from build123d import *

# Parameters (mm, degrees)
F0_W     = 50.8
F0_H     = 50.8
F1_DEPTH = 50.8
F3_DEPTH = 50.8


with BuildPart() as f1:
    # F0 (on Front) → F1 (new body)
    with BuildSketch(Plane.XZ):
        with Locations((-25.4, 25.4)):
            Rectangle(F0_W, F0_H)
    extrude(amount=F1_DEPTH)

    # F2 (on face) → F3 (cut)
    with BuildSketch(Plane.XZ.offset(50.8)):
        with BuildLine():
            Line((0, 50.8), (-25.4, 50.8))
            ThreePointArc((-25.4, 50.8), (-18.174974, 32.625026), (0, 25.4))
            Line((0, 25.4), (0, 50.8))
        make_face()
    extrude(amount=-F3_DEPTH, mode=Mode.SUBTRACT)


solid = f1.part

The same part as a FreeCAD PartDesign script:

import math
import FreeCAD as App
import Part
import Sketcher
Q = App.Units.Quantity

doc = App.newDocument("Part")
params = doc.addObject("Spreadsheet::Sheet", "Params")
for row, (alias, value) in enumerate([
    ("sketch1_width", "2 in"),
    ("pad1_length", "2 in"),
    ("sketch2_width", "1 in"),
    ("pocket1_length", "2 in"),
], start=1):
    params.set(f"A{row}", alias)
    params.set(f"B{row}", "=" + value)
    params.setAlias(f"B{row}", alias)

body = doc.addObject("PartDesign::Body", "Body")

# Sketch on XZ plane
sketch1 = body.newObject("Sketcher::SketchObject", "Sketch")
sketch1.AttachmentSupport = (doc.getObject("XZ_Plane"), [""])
sketch1.MapMode = "FlatFace"
sketch1.addGeometry(Part.LineSegment(App.Vector(-50.8, 50.8, 0), App.Vector(-50.8, 0, 0)), False)
sketch1.addGeometry(Part.LineSegment(App.Vector(-50.8, 0, 0), App.Vector(0, 0, 0)), False)
sketch1.addGeometry(Part.LineSegment(App.Vector(0, 0, 0), App.Vector(0, 50.8, 0)), False)
sketch1.addGeometry(Part.LineSegment(App.Vector(0, 50.8, 0), App.Vector(-50.8, 50.8, 0)), False)
sketch1.addConstraint(Sketcher.Constraint("Coincident", 0, 2, 1, 1))
sketch1.addConstraint(Sketcher.Constraint("Coincident", 1, 2, 2, 1))
sketch1.addConstraint(Sketcher.Constraint("Coincident", 2, 2, 3, 1))
sketch1.addConstraint(Sketcher.Constraint("Coincident", 3, 2, 0, 1))
sketch1.addConstraint(Sketcher.Constraint("Vertical", 0))
sketch1.addConstraint(Sketcher.Constraint("Horizontal", 1))
sketch1.addConstraint(Sketcher.Constraint("Vertical", 2))
sketch1.addConstraint(Sketcher.Constraint("Horizontal", 3))
sketch1.addConstraint(Sketcher.Constraint("Coincident", 1, 2, -1, 1))
sketch1.addConstraint(Sketcher.Constraint("Equal", 3, 0))
sketch1.addConstraint(Sketcher.Constraint("DistanceX", 1, 1, 1, 2, Q("2 in")))
sketch1.setExpression("Constraints[10]", "Params.sketch1_width")
pad1 = body.newObject("PartDesign::Pad", "Pad")
pad1.Profile = sketch1
pad1.setExpression("Length", "Params.pad1_length")

# Sketch on XZ plane
sketch2 = body.newObject("Sketcher::SketchObject", "Sketch001")
sketch2.AttachmentSupport = (doc.getObject("XZ_Plane"), [""])
sketch2.MapMode = "FlatFace"
sketch2.AttachmentOffset = App.Placement(App.Vector(0, 0, 2 * 25.4), App.Rotation())
sketch2.addGeometry(Part.LineSegment(App.Vector(0, 50.8, 0), App.Vector(-25.4, 50.8, 0)), False)
sketch2.addGeometry(Part.ArcOfCircle(Part.Circle(App.Vector(-0.707737, 50.092263, 0), App.Vector(0, 0, 1), 24.702404), math.radians(178.358222), math.radians(271.641778)), False)
sketch2.addGeometry(Part.LineSegment(App.Vector(0, 25.4, 0), App.Vector(0, 50.8, 0)), False)
sketch2.addConstraint(Sketcher.Constraint("Coincident", 0, 2, 1, 1))
sketch2.addConstraint(Sketcher.Constraint("Coincident", 1, 2, 2, 1))
sketch2.addConstraint(Sketcher.Constraint("Coincident", 2, 2, 0, 1))
sketch2.addConstraint(Sketcher.Constraint("Horizontal", 0))
sketch2.addConstraint(Sketcher.Constraint("Vertical", 2))
sketch2.addConstraint(Sketcher.Constraint("PointOnObject", 1, 2, -2))
sketch2.addConstraint(Sketcher.Constraint("Equal", 0, 2))
sketch2.addConstraint(Sketcher.Constraint("DistanceX", 0, 2, 0, 1, Q("1 in")))
sketch2.addConstraint(Sketcher.Constraint("DistanceY", -1, 1, 0, 2, Q("2 in")))
sketch2.addConstraint(Sketcher.Constraint("Radius", 1, 24.702404))
sketch2.setExpression("Constraints[7]", "Params.sketch2_width")
pocket1 = body.newObject("PartDesign::Pocket", "Pocket")
pocket1.Profile = sketch2
pocket1.setExpression("Length", "Params.pocket1_length")

doc.recompute()
